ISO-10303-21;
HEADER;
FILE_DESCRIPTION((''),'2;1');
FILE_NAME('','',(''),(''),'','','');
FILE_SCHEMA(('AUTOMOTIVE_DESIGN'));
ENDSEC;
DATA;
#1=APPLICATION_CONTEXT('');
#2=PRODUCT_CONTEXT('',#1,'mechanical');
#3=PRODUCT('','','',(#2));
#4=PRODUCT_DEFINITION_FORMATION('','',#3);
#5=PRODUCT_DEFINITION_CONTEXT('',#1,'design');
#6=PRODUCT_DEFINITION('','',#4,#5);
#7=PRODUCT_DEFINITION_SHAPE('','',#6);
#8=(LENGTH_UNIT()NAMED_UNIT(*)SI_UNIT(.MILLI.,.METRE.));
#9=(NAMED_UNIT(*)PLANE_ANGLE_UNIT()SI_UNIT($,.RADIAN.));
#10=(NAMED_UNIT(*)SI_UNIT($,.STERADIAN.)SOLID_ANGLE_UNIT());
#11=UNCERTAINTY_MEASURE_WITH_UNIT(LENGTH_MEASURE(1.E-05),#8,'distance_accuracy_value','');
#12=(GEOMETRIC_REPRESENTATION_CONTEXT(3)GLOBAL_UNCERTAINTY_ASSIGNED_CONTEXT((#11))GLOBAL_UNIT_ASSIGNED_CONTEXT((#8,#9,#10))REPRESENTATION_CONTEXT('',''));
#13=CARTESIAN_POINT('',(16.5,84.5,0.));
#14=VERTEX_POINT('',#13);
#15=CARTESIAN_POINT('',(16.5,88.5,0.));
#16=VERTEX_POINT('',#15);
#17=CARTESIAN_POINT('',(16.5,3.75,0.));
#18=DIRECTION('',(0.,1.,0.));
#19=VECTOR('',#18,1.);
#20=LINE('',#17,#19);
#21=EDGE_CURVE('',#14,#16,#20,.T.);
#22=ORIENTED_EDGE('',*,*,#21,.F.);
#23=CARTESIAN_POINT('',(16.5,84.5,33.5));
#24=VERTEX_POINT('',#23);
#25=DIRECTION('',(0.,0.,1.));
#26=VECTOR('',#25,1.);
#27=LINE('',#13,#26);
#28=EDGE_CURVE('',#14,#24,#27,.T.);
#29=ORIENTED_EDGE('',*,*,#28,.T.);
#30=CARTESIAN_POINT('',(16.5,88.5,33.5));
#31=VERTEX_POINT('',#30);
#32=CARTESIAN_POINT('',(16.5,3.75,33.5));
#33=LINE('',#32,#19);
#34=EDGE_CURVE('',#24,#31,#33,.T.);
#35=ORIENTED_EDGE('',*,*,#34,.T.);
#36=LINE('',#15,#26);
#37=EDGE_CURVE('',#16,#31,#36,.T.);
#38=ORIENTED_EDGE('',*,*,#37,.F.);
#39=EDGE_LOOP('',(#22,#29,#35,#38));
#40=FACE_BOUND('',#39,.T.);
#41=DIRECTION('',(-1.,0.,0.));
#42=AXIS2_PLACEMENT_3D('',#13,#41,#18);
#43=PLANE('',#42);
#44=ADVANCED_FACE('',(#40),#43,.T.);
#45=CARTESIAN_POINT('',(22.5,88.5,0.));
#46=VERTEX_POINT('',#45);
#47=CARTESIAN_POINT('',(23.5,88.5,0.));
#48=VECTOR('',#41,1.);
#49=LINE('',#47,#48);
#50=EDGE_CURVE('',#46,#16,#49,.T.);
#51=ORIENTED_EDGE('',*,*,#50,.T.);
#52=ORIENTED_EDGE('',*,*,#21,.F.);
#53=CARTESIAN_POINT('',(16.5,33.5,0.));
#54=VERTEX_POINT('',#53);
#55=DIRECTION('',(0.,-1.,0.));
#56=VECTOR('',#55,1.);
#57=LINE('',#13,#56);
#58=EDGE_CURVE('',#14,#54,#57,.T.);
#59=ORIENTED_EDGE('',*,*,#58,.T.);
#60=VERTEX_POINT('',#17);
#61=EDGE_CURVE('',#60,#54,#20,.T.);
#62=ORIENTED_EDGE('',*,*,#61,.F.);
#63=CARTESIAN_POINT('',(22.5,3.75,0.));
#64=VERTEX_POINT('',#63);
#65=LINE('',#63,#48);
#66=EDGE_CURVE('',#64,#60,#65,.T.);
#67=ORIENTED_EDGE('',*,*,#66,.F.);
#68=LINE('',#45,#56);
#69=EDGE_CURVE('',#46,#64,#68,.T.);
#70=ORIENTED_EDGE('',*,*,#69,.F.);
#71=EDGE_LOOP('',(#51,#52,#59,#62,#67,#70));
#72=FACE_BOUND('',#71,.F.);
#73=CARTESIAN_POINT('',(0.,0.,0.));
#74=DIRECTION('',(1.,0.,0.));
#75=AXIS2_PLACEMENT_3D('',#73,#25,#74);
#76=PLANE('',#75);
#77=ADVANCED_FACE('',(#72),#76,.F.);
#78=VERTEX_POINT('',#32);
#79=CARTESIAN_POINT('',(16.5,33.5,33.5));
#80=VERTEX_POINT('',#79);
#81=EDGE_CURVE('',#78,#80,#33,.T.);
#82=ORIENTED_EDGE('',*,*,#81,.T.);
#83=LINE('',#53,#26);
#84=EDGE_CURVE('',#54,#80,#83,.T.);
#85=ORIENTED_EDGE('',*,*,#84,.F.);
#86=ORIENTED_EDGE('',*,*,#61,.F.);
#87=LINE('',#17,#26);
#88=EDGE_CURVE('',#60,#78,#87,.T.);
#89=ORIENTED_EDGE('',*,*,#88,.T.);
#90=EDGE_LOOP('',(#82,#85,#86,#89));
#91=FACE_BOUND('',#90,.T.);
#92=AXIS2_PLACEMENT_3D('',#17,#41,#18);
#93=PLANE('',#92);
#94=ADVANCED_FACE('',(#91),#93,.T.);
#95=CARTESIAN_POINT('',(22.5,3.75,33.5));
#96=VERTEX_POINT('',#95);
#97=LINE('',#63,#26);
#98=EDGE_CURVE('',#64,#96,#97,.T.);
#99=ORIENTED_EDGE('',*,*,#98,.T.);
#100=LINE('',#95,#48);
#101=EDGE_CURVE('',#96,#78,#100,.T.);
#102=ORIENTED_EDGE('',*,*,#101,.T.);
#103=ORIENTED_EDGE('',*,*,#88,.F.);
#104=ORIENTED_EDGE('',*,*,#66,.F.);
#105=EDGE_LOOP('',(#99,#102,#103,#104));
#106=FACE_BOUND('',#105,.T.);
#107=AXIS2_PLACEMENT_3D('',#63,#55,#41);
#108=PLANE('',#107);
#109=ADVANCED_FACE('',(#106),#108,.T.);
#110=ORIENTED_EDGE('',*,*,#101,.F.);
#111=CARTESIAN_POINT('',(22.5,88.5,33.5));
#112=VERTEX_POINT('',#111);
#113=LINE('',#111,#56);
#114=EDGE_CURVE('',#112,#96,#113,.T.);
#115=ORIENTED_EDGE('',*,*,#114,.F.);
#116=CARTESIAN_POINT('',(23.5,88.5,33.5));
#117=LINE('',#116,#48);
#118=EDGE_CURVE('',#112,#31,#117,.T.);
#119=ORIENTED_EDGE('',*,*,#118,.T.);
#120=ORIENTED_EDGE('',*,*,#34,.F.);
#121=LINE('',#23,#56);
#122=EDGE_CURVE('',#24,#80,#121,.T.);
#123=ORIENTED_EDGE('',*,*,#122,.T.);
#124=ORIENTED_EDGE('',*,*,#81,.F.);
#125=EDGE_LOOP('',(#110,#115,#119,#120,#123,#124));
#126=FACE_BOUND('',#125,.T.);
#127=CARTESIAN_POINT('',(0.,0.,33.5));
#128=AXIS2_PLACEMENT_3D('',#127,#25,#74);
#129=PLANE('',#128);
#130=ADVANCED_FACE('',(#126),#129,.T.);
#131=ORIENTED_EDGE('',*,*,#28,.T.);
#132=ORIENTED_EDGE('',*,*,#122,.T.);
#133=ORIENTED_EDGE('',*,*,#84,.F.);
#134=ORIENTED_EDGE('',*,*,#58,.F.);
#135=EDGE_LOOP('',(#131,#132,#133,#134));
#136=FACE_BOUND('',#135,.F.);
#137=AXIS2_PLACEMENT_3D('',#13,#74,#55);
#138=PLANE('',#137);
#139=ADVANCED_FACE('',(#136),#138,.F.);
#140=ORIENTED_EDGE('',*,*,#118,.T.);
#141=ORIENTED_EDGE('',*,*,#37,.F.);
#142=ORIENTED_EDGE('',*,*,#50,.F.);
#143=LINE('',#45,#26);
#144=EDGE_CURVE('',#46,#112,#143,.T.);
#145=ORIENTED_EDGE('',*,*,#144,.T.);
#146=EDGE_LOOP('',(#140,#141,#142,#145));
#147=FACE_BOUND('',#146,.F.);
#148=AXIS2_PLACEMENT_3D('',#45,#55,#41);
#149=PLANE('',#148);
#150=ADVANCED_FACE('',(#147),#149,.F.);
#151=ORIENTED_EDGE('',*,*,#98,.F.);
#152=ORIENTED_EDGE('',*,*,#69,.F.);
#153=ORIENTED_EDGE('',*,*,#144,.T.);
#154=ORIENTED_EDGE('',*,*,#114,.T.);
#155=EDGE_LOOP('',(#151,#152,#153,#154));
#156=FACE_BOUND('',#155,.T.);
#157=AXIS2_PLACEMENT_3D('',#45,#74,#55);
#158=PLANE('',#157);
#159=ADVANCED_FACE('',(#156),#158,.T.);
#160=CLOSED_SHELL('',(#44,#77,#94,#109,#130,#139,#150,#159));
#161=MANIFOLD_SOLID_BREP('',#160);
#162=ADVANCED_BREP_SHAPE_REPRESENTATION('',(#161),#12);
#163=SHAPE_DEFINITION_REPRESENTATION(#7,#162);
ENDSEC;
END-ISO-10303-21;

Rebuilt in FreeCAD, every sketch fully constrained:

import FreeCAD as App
import Part
import Sketcher
Q = App.Units.Quantity


def add_polygon(sketch, points):
    """Adds a closed chain of lines whose ends are joined by coincident constraints."""
    first, n = sketch.GeometryCount, len(points)
    for a, b in zip(points, points[1:] + points[:1]):
        sketch.addGeometry(Part.LineSegment(App.Vector(*a, 0), App.Vector(*b, 0)), False)
    for i in range(n):
        sketch.addConstraint(Sketcher.Constraint("Coincident", first + i, 2, first + (i + 1) % n, 1))

doc = App.newDocument("Part")
body = doc.addObject("PartDesign::Body", "Body")

# Sketch on XY plane
sketch1 = body.newObject("Sketcher::SketchObject", "Sketch")
sketch1.AttachmentSupport = (doc.getObject("XY_Plane"), [""])
sketch1.MapMode = "FlatFace"
add_polygon(sketch1, [(22.5, 3.75), (22.5, 88.5), (16.5, 88.5), (16.5, 3.75)])  # lines 0-3
sketch1.addConstraint([
    Sketcher.Constraint("Vertical", 0),
    Sketcher.Constraint("Horizontal", 1),
    Sketcher.Constraint("Vertical", 2),
    Sketcher.Constraint("Horizontal", 3),
    Sketcher.Constraint("DistanceX", 1, 2, 1, 1, Q("6 mm")),
    Sketcher.Constraint("DistanceY", 0, 1, 0, 2, Q("84.75 mm")),
    Sketcher.Constraint("DistanceX", -1, 1, 0, 2, Q("22.5 mm")),
    Sketcher.Constraint("DistanceY", -1, 1, 0, 2, Q("88.5 mm")),
])
pad1 = body.newObject("PartDesign::Pad", "Pad")
pad1.Profile = sketch1
pad1.Length = 33.5

doc.recompute()
